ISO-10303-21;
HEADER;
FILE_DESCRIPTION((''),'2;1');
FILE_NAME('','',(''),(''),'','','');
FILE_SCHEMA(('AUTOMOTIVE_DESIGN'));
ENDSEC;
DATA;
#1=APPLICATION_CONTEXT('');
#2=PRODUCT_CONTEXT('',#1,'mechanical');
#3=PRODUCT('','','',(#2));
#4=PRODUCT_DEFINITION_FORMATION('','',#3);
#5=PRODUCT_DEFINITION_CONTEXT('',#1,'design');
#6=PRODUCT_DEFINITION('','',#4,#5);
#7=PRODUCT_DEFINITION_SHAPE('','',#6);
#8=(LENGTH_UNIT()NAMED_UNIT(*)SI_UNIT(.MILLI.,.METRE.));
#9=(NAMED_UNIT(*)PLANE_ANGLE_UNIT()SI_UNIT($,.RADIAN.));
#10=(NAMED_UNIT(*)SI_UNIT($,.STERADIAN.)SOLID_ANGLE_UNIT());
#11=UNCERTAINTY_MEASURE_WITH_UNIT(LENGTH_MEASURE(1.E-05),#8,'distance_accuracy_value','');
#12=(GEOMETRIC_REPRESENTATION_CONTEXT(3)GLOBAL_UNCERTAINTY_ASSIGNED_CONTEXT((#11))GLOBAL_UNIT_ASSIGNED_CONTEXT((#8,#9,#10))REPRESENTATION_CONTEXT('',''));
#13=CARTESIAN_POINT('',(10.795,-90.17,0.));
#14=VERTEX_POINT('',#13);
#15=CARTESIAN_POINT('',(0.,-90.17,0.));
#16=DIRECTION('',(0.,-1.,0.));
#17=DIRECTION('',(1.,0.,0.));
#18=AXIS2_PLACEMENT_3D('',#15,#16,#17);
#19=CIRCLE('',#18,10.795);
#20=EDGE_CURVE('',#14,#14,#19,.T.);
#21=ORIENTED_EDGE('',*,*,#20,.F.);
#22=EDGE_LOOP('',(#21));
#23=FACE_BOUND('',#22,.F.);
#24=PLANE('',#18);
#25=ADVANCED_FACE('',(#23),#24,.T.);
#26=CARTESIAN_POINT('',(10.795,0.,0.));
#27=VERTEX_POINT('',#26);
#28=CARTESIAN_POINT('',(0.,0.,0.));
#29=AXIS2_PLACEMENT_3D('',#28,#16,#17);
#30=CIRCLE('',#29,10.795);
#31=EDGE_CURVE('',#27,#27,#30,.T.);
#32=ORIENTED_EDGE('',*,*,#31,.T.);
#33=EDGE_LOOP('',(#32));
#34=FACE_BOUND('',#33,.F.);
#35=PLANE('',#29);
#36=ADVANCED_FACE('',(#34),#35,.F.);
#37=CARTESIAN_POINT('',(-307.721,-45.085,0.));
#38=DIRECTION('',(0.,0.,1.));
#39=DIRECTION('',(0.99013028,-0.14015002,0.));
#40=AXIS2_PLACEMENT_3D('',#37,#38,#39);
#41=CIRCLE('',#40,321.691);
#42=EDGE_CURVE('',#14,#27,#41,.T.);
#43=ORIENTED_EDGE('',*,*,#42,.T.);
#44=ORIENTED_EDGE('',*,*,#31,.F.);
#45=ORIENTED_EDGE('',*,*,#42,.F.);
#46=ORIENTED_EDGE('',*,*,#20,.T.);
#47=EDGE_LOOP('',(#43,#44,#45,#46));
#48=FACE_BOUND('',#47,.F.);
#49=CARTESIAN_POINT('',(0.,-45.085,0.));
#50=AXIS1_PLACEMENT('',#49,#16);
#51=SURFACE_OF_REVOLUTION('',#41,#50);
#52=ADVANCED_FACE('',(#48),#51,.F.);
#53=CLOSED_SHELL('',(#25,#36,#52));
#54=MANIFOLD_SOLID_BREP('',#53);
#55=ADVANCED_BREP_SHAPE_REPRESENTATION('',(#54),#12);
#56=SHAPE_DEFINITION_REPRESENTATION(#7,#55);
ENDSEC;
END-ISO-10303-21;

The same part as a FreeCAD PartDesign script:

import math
import FreeCAD as App
import Part
import Sketcher

V = App.Vector
Q = App.Units.Quantity

doc = App.newDocument("Part")
body = doc.addObject("PartDesign::Body", "Body")

sketch1 = doc.addObject("Sketcher::SketchObject", "Sketch")
body.addObject(sketch1)
sketch1.AttachmentSupport = (doc.XY_Plane, [""])
sketch1.MapMode = "FlatFace"
sketch1.addGeometry([
    Part.LineSegment(V(11, 0, 0), V(0, 0, 0)),
    Part.LineSegment(V(0, 0, 0), V(0, -90, 0)),
    Part.LineSegment(V(0, -90, 0), V(11, -90, 0)),
    Part.ArcOfCircle(Part.Circle(V(-308, -45, 0), V(0, 0, 1), 322), math.radians(-8.06), math.radians(8.06)),
], False)
sketch1.addConstraint([
    Sketcher.Constraint("Coincident", 0, 2, 1, 1),
    Sketcher.Constraint("Coincident", 1, 2, 2, 1),
    Sketcher.Constraint("Coincident", 2, 2, 3, 1),
    Sketcher.Constraint("Coincident", 3, 2, 0, 1),
    Sketcher.Constraint("Horizontal", 0),
    Sketcher.Constraint("Vertical", 1),
    Sketcher.Constraint("Horizontal", 2),
    Sketcher.Constraint("Coincident", 0, 2, -1, 1),
    Sketcher.Constraint("Vertical", 2, 2, 3, 2),
    Sketcher.Constraint("Radius", 3, Q("12.665 in")),
    Sketcher.Constraint("DistanceY", 1, 2, 1, 1, Q("3.55 in")),
    Sketcher.Constraint("DistanceX", 0, 2, 0, 1, Q("0.425 in")),
])
revolution = doc.addObject("PartDesign::Revolution", "Revolution")
body.addObject(revolution)
revolution.Profile = sketch1
revolution.ReferenceAxis = (sketch1, ["V_Axis"])
revolution.Angle = 360

doc.recompute()
